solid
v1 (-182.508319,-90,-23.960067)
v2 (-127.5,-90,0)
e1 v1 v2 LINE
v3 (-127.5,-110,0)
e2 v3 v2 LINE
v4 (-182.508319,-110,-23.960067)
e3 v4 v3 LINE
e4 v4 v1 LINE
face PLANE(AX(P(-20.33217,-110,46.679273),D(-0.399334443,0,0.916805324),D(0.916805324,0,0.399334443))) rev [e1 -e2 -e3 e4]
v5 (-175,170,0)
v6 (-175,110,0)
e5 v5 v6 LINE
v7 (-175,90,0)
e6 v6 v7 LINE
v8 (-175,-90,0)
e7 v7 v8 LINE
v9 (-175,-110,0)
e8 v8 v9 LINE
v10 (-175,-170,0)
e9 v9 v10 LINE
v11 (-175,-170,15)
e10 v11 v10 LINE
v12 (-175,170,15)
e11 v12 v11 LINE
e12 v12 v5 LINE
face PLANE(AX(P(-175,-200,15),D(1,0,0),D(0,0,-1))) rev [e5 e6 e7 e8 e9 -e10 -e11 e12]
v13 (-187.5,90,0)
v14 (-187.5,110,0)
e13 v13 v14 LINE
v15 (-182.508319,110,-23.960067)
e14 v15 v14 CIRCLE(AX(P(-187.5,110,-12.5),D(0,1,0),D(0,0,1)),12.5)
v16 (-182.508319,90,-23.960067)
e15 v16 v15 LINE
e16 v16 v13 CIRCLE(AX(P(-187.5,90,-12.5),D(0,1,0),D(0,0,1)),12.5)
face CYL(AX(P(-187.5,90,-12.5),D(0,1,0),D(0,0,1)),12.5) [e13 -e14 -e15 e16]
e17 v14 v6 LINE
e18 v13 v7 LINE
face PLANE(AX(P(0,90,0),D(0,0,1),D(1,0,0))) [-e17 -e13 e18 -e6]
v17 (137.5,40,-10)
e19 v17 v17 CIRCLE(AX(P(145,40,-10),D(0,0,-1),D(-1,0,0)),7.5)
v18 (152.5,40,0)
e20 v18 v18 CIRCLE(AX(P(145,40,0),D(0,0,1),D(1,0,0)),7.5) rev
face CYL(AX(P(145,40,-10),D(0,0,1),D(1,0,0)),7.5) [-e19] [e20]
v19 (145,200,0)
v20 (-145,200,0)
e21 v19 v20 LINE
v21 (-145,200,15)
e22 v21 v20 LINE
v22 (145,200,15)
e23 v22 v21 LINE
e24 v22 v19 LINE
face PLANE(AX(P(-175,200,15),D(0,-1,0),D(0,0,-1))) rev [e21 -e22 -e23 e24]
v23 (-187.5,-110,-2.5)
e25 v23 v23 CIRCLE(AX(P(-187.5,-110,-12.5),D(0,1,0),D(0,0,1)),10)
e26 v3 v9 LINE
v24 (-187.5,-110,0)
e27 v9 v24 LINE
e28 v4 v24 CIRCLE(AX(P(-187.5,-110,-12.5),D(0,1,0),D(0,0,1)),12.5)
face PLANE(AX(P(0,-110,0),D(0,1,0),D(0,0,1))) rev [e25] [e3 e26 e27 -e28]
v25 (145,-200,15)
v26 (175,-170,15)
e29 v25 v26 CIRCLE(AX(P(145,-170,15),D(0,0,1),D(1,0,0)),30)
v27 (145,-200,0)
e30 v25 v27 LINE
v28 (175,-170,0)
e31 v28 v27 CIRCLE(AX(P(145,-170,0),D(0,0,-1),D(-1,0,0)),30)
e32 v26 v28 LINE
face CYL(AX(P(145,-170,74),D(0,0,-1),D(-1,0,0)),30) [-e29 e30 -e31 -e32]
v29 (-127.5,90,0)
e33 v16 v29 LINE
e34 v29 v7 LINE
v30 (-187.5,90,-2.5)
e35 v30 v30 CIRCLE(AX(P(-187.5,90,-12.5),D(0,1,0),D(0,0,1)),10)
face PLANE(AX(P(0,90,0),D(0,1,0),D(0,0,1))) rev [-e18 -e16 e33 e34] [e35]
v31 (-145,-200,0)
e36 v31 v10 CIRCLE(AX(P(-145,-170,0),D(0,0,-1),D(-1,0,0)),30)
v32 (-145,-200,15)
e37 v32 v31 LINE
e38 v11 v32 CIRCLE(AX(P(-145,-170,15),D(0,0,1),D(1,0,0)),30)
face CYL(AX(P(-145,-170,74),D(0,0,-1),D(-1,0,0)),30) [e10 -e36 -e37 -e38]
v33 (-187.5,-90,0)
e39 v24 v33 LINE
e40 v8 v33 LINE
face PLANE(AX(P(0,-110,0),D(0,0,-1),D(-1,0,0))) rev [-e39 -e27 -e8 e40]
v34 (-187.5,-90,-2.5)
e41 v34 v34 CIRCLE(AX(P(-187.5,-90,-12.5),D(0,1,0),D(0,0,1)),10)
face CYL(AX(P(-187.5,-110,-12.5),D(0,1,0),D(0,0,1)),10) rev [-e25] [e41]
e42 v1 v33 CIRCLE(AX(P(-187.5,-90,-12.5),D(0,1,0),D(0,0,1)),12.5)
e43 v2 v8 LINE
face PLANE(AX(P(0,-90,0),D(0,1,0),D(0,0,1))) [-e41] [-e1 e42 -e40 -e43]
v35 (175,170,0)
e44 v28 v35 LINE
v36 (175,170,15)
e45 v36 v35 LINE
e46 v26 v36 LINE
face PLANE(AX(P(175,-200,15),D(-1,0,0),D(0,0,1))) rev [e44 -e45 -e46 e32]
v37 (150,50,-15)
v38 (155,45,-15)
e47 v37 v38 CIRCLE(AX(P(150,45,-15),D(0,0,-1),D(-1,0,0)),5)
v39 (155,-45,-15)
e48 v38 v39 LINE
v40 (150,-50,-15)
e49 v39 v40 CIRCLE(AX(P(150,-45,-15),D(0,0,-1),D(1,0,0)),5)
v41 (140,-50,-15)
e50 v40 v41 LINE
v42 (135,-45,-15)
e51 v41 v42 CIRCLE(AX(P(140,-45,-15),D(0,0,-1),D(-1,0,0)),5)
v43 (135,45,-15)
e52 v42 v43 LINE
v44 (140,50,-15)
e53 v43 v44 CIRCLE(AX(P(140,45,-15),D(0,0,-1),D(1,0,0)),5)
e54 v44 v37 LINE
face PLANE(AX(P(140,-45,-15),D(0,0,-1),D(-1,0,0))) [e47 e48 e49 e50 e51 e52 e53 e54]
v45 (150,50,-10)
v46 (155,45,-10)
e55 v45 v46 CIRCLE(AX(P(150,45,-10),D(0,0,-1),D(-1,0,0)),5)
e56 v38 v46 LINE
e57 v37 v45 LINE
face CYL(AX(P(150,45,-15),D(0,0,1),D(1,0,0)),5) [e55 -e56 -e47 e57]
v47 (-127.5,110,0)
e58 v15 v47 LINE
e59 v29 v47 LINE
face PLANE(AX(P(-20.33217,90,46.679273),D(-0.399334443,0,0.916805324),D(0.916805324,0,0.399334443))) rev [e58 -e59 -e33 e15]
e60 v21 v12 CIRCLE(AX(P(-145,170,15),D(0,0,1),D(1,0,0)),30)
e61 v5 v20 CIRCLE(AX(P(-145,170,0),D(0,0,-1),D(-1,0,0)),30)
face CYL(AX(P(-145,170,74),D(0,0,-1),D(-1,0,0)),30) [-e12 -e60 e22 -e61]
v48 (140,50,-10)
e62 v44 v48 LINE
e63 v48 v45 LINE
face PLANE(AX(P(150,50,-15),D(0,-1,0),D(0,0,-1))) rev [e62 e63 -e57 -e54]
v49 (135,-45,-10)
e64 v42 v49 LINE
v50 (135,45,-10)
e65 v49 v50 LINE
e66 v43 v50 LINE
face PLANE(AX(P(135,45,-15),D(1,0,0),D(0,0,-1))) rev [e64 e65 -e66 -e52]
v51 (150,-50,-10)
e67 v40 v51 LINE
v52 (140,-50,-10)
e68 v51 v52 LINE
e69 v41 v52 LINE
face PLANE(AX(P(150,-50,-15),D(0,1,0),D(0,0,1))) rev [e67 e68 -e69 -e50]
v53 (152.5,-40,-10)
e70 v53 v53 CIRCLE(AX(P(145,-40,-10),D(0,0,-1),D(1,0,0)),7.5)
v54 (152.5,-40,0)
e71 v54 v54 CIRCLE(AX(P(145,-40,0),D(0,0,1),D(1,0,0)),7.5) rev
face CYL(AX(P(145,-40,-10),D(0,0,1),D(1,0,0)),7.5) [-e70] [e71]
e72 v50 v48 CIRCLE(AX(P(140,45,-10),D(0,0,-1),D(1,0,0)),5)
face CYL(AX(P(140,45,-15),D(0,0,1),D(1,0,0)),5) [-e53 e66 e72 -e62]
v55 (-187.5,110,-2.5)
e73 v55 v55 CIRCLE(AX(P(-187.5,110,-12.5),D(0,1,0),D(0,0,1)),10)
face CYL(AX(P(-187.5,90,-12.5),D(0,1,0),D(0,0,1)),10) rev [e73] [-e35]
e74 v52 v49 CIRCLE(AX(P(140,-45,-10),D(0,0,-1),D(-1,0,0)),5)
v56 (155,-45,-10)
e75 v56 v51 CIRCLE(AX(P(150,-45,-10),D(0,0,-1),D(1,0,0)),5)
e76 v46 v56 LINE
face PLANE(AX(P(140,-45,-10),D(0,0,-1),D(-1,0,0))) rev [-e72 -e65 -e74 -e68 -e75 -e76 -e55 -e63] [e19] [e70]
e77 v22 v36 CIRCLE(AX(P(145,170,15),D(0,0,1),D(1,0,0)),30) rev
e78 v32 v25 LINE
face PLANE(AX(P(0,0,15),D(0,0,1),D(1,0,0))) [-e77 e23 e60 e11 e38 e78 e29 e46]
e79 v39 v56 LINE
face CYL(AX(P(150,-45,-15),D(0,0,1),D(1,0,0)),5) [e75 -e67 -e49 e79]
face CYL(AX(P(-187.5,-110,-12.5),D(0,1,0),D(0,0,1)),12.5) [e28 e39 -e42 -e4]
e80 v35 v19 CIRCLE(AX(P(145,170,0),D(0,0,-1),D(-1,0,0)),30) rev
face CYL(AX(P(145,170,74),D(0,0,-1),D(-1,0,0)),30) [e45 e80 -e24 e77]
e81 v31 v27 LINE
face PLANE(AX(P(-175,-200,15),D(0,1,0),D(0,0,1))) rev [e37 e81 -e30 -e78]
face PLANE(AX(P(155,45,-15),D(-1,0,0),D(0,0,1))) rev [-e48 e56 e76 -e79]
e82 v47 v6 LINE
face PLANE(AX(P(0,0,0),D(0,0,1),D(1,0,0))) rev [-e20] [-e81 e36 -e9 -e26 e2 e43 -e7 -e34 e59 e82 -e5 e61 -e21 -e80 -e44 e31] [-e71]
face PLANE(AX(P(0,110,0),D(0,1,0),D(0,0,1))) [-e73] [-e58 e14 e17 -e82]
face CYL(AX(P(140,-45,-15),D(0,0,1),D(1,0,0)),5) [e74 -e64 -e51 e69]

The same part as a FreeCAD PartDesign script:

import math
import FreeCAD as App
import Part
import Sketcher

V = App.Vector
Q = App.Units.Quantity

doc = App.newDocument("Part")
body = doc.addObject("PartDesign::Body", "Body")

# Sketch on XY plane
sketch1 = body.newObject("Sketcher::SketchObject", "Sketch")
sketch1.AttachmentSupport = (doc.getObject("XY_Plane"), [""])
sketch1.MapMode = "FlatFace"
sketch1.addGeometry([
    Part.LineSegment(V(-175, 200, 0), V(-175, -200, 0)),
    Part.LineSegment(V(-175, -200, 0), V(175, -200, 0)),
    Part.LineSegment(V(175, -200, 0), V(175, 200, 0)),
    Part.LineSegment(V(175, 200, 0), V(-175, 200, 0)),
], False)
sketch1.addConstraint([
    Sketcher.Constraint("Coincident", 0, 2, 1, 1),
    Sketcher.Constraint("Coincident", 1, 2, 2, 1),
    Sketcher.Constraint("Coincident", 2, 2, 3, 1),
    Sketcher.Constraint("Coincident", 3, 2, 0, 1),
    Sketcher.Constraint("Vertical", 0),
    Sketcher.Constraint("Horizontal", 1),
    Sketcher.Constraint("Vertical", 2),
    Sketcher.Constraint("Horizontal", 3),
    Sketcher.Constraint("Symmetric", 0, 2, 2, 2, -1, 1),
    Sketcher.Constraint("DistanceX", 1, 1, 1, 2, Q("350 mm")),
    Sketcher.Constraint("DistanceY", 0, 2, 0, 1, Q("400 mm")),
])
pad1 = body.newObject("PartDesign::Pad", "Pad")
pad1.Profile = sketch1
pad1.Length = 15

# Sketch on XZ plane
sketch2 = body.newObject("Sketcher::SketchObject", "Sketch001")
sketch2.AttachmentSupport = (doc.getObject("XZ_Plane"), [""])
sketch2.MapMode = "FlatFace"
sketch2.AttachmentOffset = App.Placement(V(0, 0, -100), App.Rotation())
sketch2.addGeometry([
    Part.LineSegment(V(-188, 0, 0), V(-128, 0, 0)),
    Part.LineSegment(V(-128, 0, 0), V(-183, -24, 0)),
    Part.ArcOfCircle(Part.Circle(V(-188, -12, 0), V(0, 0, 1), 12), math.radians(90), math.radians(294)),
    Part.Circle(V(-188, -12, 0), V(0, 0, 1), 10),
], False)
sketch2.addConstraint([
    Sketcher.Constraint("Coincident", 0, 2, 1, 1),
    Sketcher.Constraint("Tangent", 1, 2, 2, 2),
    Sketcher.Constraint("Tangent", 2, 1, 0, 1),
    Sketcher.Constraint("Horizontal", 0),
    Sketcher.Constraint("Coincident", 3, 3, 2, 3),
    Sketcher.Constraint("PointOnObject", 0, 2, -1),
    Sketcher.Constraint("Diameter", 3, Q("20 mm")),
    Sketcher.Constraint("Radius", 2, Q("12.5 mm")),
    Sketcher.Constraint("DistanceX", 0, 1, 0, 2, Q("60 mm")),
    Sketcher.Constraint("DistanceX", 2, 3, -1, 1, Q("187.5 mm")),
])
pad2 = body.newObject("PartDesign::Pad", "Pad001")
pad2.Profile = sketch2
pad2.Type = "TwoLengths"
pad2.Length = 10
pad2.Length2 = 10
pad2.Reversed = True

# Sketch on XZ plane
sketch3 = body.newObject("Sketcher::SketchObject", "Sketch002")
sketch3.AttachmentSupport = (doc.getObject("XZ_Plane"), [""])
sketch3.MapMode = "FlatFace"
sketch3.AttachmentOffset = App.Placement(V(0, 0, 100), App.Rotation())
sketch3.addGeometry([
    Part.ArcOfCircle(Part.Circle(V(-188, -12, 0), V(0, 0, 1), 12), math.radians(90), math.radians(294)),
    Part.LineSegment(V(-188, 0, 0), V(-128, 0, 0)),
    Part.LineSegment(V(-128, 0, 0), V(-183, -24, 0)),
    Part.Circle(V(-188, -12, 0), V(0, 0, 1), 10),
], False)
sketch3.addConstraint([
    Sketcher.Constraint("Tangent", 0, 1, 1, 1),
    Sketcher.Constraint("Coincident", 1, 2, 2, 1),
    Sketcher.Constraint("Tangent", 2, 2, 0, 2),
    Sketcher.Constraint("Horizontal", 1),
    Sketcher.Constraint("Coincident", 3, 3, 0, 3),
    Sketcher.Constraint("PointOnObject", 0, 1, -1),
    Sketcher.Constraint("Diameter", 3, Q("20 mm")),
    Sketcher.Constraint("Radius", 0, Q("12.5 mm")),
    Sketcher.Constraint("DistanceX", 1, 1, 1, 2, Q("60 mm")),
    Sketcher.Constraint("DistanceX", 0, 3, -1, 1, Q("187.5 mm")),
])
pad3 = body.newObject("PartDesign::Pad", "Pad002")
pad3.Profile = sketch3
pad3.Type = "TwoLengths"
pad3.Length = 10
pad3.Length2 = 10
pad3.Reversed = True

# Sketch on XY plane
sketch4 = body.newObject("Sketcher::SketchObject", "Sketch003")
sketch4.AttachmentSupport = (doc.getObject("XY_Plane"), [""])
sketch4.MapMode = "FlatFace"
sketch4.addGeometry([
    Part.LineSegment(V(175, 200, 0), V(175, 170, 0)),  # 0
    Part.ArcOfCircle(Part.Circle(V(145, 170, 0), V(0, 0, 1), 30), math.radians(0), math.radians(90)),  # 1
    Part.LineSegment(V(145, 200, 0), V(175, 200, 0)),  # 2
    Part.ArcOfCircle(Part.Circle(V(145, -170, 0), V(0, 0, 1), 30), math.radians(-90), math.radians(0)),  # 3
    Part.LineSegment(V(175, -170, 0), V(175, -200, 0)),  # 4
    Part.LineSegment(V(175, -200, 0), V(145, -200, 0)),  # 5
    Part.ArcOfCircle(Part.Circle(V(-145, -170, 0), V(0, 0, 1), 30), math.radians(180), math.radians(270)),  # 6
    Part.LineSegment(V(-145, -200, 0), V(-175, -200, 0)),  # 7
    Part.LineSegment(V(-175, -200, 0), V(-175, -170, 0)),  # 8
    Part.LineSegment(V(-175, 200, 0), V(-145, 200, 0)),  # 9
    Part.ArcOfCircle(Part.Circle(V(-145, 170, 0), V(0, 0, 1), 30), math.radians(90), math.radians(180)),  # 10
    Part.LineSegment(V(-175, 170, 0), V(-175, 200, 0)),  # 11
], False)
sketch4.addConstraint([
    Sketcher.Constraint("Tangent", 0, 2, 1, 1),
    Sketcher.Constraint("Tangent", 1, 2, 2, 1),
    Sketcher.Constraint("Coincident", 2, 2, 0, 1),
    Sketcher.Constraint("Tangent", 3, 2, 4, 1),
    Sketcher.Constraint("Coincident", 4, 2, 5, 1),
    Sketcher.Constraint("Tangent", 5, 2, 3, 1),
    Sketcher.Constraint("Tangent", 6, 2, 7, 1),
    Sketcher.Constraint("Coincident", 7, 2, 8, 1),
    Sketcher.Constraint("Tangent", 8, 2, 6, 1),
    Sketcher.Constraint("Tangent", 9, 2, 10, 1),
    Sketcher.Constraint("Tangent", 10, 2, 11, 1),
    Sketcher.Constraint("Coincident", 11, 2, 9, 1),
    Sketcher.Constraint("Vertical", 0),
    Sketcher.Constraint("Horizontal", 2),
    Sketcher.Constraint("Vertical", 4),
    Sketcher.Constraint("Horizontal", 5),
    Sketcher.Constraint("Horizontal", 7),
    Sketcher.Constraint("Vertical", 8),
    Sketcher.Constraint("Horizontal", 9),
    Sketcher.Constraint("Vertical", 11),
    Sketcher.Constraint("Equal", 1, 3),
    Sketcher.Constraint("Equal", 3, 6),
    Sketcher.Constraint("Equal", 6, 10),
    Sketcher.Constraint("Symmetric", 1, 3, 6, 3, -1, 1),
    Sketcher.Constraint("Symmetric", 3, 3, 10, 3, -1, 1),
    Sketcher.Constraint("Symmetric", 3, 3, 6, 3, -2),
    Sketcher.Constraint("Radius", 1, Q("30 mm")),
    Sketcher.Constraint("DistanceX", -1, 1, 1, 3, Q("145 mm")),
    Sketcher.Constraint("DistanceY", -1, 1, 1, 3, Q("170 mm")),
])
pocket1 = body.newObject("PartDesign::Pocket", "Pocket")
pocket1.Profile = sketch4
pocket1.Length = 74
pocket1.Reversed = True

# Sketch on XY plane
sketch5 = body.newObject("Sketcher::SketchObject", "Sketch004")
sketch5.AttachmentSupport = (doc.getObject("XY_Plane"), [""])
sketch5.MapMode = "FlatFace"
sketch5.addGeometry([
    Part.Circle(V(145, 40, 0), V(0, 0, 1), 8),
    Part.Circle(V(145, -40, 0), V(0, 0, 1), 8),
], False)
sketch5.addConstraint([
    Sketcher.Constraint("Equal", 0, 1),
    Sketcher.Constraint("Symmetric", 0, 3, 1, 3, -1),
    Sketcher.Constraint("Diameter", 0, Q("15 mm")),
    Sketcher.Constraint("DistanceX", -1, 1, 0, 3, Q("145 mm")),
    Sketcher.Constraint("DistanceY", -1, 1, 0, 3, Q("40 mm")),
])
pad4 = body.newObject("PartDesign::Pad", "Pad003")
pad4.Profile = sketch5
pad4.Length = 10
pad4.Reversed = True

# Sketch on XY plane
sketch6 = body.newObject("Sketcher::SketchObject", "Sketch005")
sketch6.AttachmentSupport = (doc.getObject("XY_Plane"), [""])
sketch6.MapMode = "FlatFace"
sketch6.AttachmentOffset = App.Placement(V(0, 0, -10), App.Rotation())
sketch6.addGeometry([
    Part.LineSegment(V(140, 50, 0), V(150, 50, 0)),  # 0
    Part.ArcOfCircle(Part.Circle(V(150, 45, 0), V(0, 0, 1), 5), math.radians(0), math.radians(90)),  # 1
    Part.LineSegment(V(155, 45, 0), V(155, -45, 0)),  # 2
    Part.ArcOfCircle(Part.Circle(V(150, -45, 0), V(0, 0, 1), 5), math.radians(-90), math.radians(0)),  # 3
    Part.LineSegment(V(150, -50, 0), V(140, -50, 0)),  # 4
    Part.ArcOfCircle(Part.Circle(V(140, -45, 0), V(0, 0, 1), 5), math.radians(180), math.radians(270)),  # 5
    Part.LineSegment(V(135, -45, 0), V(135, 45, 0)),  # 6
    Part.ArcOfCircle(Part.Circle(V(140, 45, 0), V(0, 0, 1), 5), math.radians(90), math.radians(180)),  # 7
], False)
sketch6.addConstraint([
    Sketcher.Constraint("Tangent", 0, 2, 1, 2),
    Sketcher.Constraint("Tangent", 1, 1, 2, 1),
    Sketcher.Constraint("Tangent", 2, 2, 3, 2),
    Sketcher.Constraint("Tangent", 3, 1, 4, 1),
    Sketcher.Constraint("Tangent", 4, 2, 5, 2),
    Sketcher.Constraint("Tangent", 5, 1, 6, 1),
    Sketcher.Constraint("Tangent", 6, 2, 7, 2),
    Sketcher.Constraint("Tangent", 7, 1, 0, 1),
    Sketcher.Constraint("Horizontal", 0),
    Sketcher.Constraint("Vertical", 2),
    Sketcher.Constraint("Horizontal", 4),
    Sketcher.Constraint("Vertical", 6),
    Sketcher.Constraint("Equal", 1, 3),
    Sketcher.Constraint("Equal", 3, 5),
    Sketcher.Constraint("Equal", 5, 7),
    Sketcher.Constraint("Radius", 1, Q("5 mm")),
    Sketcher.Constraint("DistanceX", 0, 1, 0, 2, Q("10 mm")),
    Sketcher.Constraint("DistanceY", 2, 2, 2, 1, Q("90 mm")),
    Sketcher.Constraint("DistanceX", -1, 1, 1, 3, Q("150 mm")),
    Sketcher.Constraint("DistanceY", -1, 1, 1, 3, Q("45 mm")),
])
pad5 = body.newObject("PartDesign::Pad", "Pad004")
pad5.Profile = sketch6
pad5.Length = 5
pad5.Reversed = True

doc.recompute()
